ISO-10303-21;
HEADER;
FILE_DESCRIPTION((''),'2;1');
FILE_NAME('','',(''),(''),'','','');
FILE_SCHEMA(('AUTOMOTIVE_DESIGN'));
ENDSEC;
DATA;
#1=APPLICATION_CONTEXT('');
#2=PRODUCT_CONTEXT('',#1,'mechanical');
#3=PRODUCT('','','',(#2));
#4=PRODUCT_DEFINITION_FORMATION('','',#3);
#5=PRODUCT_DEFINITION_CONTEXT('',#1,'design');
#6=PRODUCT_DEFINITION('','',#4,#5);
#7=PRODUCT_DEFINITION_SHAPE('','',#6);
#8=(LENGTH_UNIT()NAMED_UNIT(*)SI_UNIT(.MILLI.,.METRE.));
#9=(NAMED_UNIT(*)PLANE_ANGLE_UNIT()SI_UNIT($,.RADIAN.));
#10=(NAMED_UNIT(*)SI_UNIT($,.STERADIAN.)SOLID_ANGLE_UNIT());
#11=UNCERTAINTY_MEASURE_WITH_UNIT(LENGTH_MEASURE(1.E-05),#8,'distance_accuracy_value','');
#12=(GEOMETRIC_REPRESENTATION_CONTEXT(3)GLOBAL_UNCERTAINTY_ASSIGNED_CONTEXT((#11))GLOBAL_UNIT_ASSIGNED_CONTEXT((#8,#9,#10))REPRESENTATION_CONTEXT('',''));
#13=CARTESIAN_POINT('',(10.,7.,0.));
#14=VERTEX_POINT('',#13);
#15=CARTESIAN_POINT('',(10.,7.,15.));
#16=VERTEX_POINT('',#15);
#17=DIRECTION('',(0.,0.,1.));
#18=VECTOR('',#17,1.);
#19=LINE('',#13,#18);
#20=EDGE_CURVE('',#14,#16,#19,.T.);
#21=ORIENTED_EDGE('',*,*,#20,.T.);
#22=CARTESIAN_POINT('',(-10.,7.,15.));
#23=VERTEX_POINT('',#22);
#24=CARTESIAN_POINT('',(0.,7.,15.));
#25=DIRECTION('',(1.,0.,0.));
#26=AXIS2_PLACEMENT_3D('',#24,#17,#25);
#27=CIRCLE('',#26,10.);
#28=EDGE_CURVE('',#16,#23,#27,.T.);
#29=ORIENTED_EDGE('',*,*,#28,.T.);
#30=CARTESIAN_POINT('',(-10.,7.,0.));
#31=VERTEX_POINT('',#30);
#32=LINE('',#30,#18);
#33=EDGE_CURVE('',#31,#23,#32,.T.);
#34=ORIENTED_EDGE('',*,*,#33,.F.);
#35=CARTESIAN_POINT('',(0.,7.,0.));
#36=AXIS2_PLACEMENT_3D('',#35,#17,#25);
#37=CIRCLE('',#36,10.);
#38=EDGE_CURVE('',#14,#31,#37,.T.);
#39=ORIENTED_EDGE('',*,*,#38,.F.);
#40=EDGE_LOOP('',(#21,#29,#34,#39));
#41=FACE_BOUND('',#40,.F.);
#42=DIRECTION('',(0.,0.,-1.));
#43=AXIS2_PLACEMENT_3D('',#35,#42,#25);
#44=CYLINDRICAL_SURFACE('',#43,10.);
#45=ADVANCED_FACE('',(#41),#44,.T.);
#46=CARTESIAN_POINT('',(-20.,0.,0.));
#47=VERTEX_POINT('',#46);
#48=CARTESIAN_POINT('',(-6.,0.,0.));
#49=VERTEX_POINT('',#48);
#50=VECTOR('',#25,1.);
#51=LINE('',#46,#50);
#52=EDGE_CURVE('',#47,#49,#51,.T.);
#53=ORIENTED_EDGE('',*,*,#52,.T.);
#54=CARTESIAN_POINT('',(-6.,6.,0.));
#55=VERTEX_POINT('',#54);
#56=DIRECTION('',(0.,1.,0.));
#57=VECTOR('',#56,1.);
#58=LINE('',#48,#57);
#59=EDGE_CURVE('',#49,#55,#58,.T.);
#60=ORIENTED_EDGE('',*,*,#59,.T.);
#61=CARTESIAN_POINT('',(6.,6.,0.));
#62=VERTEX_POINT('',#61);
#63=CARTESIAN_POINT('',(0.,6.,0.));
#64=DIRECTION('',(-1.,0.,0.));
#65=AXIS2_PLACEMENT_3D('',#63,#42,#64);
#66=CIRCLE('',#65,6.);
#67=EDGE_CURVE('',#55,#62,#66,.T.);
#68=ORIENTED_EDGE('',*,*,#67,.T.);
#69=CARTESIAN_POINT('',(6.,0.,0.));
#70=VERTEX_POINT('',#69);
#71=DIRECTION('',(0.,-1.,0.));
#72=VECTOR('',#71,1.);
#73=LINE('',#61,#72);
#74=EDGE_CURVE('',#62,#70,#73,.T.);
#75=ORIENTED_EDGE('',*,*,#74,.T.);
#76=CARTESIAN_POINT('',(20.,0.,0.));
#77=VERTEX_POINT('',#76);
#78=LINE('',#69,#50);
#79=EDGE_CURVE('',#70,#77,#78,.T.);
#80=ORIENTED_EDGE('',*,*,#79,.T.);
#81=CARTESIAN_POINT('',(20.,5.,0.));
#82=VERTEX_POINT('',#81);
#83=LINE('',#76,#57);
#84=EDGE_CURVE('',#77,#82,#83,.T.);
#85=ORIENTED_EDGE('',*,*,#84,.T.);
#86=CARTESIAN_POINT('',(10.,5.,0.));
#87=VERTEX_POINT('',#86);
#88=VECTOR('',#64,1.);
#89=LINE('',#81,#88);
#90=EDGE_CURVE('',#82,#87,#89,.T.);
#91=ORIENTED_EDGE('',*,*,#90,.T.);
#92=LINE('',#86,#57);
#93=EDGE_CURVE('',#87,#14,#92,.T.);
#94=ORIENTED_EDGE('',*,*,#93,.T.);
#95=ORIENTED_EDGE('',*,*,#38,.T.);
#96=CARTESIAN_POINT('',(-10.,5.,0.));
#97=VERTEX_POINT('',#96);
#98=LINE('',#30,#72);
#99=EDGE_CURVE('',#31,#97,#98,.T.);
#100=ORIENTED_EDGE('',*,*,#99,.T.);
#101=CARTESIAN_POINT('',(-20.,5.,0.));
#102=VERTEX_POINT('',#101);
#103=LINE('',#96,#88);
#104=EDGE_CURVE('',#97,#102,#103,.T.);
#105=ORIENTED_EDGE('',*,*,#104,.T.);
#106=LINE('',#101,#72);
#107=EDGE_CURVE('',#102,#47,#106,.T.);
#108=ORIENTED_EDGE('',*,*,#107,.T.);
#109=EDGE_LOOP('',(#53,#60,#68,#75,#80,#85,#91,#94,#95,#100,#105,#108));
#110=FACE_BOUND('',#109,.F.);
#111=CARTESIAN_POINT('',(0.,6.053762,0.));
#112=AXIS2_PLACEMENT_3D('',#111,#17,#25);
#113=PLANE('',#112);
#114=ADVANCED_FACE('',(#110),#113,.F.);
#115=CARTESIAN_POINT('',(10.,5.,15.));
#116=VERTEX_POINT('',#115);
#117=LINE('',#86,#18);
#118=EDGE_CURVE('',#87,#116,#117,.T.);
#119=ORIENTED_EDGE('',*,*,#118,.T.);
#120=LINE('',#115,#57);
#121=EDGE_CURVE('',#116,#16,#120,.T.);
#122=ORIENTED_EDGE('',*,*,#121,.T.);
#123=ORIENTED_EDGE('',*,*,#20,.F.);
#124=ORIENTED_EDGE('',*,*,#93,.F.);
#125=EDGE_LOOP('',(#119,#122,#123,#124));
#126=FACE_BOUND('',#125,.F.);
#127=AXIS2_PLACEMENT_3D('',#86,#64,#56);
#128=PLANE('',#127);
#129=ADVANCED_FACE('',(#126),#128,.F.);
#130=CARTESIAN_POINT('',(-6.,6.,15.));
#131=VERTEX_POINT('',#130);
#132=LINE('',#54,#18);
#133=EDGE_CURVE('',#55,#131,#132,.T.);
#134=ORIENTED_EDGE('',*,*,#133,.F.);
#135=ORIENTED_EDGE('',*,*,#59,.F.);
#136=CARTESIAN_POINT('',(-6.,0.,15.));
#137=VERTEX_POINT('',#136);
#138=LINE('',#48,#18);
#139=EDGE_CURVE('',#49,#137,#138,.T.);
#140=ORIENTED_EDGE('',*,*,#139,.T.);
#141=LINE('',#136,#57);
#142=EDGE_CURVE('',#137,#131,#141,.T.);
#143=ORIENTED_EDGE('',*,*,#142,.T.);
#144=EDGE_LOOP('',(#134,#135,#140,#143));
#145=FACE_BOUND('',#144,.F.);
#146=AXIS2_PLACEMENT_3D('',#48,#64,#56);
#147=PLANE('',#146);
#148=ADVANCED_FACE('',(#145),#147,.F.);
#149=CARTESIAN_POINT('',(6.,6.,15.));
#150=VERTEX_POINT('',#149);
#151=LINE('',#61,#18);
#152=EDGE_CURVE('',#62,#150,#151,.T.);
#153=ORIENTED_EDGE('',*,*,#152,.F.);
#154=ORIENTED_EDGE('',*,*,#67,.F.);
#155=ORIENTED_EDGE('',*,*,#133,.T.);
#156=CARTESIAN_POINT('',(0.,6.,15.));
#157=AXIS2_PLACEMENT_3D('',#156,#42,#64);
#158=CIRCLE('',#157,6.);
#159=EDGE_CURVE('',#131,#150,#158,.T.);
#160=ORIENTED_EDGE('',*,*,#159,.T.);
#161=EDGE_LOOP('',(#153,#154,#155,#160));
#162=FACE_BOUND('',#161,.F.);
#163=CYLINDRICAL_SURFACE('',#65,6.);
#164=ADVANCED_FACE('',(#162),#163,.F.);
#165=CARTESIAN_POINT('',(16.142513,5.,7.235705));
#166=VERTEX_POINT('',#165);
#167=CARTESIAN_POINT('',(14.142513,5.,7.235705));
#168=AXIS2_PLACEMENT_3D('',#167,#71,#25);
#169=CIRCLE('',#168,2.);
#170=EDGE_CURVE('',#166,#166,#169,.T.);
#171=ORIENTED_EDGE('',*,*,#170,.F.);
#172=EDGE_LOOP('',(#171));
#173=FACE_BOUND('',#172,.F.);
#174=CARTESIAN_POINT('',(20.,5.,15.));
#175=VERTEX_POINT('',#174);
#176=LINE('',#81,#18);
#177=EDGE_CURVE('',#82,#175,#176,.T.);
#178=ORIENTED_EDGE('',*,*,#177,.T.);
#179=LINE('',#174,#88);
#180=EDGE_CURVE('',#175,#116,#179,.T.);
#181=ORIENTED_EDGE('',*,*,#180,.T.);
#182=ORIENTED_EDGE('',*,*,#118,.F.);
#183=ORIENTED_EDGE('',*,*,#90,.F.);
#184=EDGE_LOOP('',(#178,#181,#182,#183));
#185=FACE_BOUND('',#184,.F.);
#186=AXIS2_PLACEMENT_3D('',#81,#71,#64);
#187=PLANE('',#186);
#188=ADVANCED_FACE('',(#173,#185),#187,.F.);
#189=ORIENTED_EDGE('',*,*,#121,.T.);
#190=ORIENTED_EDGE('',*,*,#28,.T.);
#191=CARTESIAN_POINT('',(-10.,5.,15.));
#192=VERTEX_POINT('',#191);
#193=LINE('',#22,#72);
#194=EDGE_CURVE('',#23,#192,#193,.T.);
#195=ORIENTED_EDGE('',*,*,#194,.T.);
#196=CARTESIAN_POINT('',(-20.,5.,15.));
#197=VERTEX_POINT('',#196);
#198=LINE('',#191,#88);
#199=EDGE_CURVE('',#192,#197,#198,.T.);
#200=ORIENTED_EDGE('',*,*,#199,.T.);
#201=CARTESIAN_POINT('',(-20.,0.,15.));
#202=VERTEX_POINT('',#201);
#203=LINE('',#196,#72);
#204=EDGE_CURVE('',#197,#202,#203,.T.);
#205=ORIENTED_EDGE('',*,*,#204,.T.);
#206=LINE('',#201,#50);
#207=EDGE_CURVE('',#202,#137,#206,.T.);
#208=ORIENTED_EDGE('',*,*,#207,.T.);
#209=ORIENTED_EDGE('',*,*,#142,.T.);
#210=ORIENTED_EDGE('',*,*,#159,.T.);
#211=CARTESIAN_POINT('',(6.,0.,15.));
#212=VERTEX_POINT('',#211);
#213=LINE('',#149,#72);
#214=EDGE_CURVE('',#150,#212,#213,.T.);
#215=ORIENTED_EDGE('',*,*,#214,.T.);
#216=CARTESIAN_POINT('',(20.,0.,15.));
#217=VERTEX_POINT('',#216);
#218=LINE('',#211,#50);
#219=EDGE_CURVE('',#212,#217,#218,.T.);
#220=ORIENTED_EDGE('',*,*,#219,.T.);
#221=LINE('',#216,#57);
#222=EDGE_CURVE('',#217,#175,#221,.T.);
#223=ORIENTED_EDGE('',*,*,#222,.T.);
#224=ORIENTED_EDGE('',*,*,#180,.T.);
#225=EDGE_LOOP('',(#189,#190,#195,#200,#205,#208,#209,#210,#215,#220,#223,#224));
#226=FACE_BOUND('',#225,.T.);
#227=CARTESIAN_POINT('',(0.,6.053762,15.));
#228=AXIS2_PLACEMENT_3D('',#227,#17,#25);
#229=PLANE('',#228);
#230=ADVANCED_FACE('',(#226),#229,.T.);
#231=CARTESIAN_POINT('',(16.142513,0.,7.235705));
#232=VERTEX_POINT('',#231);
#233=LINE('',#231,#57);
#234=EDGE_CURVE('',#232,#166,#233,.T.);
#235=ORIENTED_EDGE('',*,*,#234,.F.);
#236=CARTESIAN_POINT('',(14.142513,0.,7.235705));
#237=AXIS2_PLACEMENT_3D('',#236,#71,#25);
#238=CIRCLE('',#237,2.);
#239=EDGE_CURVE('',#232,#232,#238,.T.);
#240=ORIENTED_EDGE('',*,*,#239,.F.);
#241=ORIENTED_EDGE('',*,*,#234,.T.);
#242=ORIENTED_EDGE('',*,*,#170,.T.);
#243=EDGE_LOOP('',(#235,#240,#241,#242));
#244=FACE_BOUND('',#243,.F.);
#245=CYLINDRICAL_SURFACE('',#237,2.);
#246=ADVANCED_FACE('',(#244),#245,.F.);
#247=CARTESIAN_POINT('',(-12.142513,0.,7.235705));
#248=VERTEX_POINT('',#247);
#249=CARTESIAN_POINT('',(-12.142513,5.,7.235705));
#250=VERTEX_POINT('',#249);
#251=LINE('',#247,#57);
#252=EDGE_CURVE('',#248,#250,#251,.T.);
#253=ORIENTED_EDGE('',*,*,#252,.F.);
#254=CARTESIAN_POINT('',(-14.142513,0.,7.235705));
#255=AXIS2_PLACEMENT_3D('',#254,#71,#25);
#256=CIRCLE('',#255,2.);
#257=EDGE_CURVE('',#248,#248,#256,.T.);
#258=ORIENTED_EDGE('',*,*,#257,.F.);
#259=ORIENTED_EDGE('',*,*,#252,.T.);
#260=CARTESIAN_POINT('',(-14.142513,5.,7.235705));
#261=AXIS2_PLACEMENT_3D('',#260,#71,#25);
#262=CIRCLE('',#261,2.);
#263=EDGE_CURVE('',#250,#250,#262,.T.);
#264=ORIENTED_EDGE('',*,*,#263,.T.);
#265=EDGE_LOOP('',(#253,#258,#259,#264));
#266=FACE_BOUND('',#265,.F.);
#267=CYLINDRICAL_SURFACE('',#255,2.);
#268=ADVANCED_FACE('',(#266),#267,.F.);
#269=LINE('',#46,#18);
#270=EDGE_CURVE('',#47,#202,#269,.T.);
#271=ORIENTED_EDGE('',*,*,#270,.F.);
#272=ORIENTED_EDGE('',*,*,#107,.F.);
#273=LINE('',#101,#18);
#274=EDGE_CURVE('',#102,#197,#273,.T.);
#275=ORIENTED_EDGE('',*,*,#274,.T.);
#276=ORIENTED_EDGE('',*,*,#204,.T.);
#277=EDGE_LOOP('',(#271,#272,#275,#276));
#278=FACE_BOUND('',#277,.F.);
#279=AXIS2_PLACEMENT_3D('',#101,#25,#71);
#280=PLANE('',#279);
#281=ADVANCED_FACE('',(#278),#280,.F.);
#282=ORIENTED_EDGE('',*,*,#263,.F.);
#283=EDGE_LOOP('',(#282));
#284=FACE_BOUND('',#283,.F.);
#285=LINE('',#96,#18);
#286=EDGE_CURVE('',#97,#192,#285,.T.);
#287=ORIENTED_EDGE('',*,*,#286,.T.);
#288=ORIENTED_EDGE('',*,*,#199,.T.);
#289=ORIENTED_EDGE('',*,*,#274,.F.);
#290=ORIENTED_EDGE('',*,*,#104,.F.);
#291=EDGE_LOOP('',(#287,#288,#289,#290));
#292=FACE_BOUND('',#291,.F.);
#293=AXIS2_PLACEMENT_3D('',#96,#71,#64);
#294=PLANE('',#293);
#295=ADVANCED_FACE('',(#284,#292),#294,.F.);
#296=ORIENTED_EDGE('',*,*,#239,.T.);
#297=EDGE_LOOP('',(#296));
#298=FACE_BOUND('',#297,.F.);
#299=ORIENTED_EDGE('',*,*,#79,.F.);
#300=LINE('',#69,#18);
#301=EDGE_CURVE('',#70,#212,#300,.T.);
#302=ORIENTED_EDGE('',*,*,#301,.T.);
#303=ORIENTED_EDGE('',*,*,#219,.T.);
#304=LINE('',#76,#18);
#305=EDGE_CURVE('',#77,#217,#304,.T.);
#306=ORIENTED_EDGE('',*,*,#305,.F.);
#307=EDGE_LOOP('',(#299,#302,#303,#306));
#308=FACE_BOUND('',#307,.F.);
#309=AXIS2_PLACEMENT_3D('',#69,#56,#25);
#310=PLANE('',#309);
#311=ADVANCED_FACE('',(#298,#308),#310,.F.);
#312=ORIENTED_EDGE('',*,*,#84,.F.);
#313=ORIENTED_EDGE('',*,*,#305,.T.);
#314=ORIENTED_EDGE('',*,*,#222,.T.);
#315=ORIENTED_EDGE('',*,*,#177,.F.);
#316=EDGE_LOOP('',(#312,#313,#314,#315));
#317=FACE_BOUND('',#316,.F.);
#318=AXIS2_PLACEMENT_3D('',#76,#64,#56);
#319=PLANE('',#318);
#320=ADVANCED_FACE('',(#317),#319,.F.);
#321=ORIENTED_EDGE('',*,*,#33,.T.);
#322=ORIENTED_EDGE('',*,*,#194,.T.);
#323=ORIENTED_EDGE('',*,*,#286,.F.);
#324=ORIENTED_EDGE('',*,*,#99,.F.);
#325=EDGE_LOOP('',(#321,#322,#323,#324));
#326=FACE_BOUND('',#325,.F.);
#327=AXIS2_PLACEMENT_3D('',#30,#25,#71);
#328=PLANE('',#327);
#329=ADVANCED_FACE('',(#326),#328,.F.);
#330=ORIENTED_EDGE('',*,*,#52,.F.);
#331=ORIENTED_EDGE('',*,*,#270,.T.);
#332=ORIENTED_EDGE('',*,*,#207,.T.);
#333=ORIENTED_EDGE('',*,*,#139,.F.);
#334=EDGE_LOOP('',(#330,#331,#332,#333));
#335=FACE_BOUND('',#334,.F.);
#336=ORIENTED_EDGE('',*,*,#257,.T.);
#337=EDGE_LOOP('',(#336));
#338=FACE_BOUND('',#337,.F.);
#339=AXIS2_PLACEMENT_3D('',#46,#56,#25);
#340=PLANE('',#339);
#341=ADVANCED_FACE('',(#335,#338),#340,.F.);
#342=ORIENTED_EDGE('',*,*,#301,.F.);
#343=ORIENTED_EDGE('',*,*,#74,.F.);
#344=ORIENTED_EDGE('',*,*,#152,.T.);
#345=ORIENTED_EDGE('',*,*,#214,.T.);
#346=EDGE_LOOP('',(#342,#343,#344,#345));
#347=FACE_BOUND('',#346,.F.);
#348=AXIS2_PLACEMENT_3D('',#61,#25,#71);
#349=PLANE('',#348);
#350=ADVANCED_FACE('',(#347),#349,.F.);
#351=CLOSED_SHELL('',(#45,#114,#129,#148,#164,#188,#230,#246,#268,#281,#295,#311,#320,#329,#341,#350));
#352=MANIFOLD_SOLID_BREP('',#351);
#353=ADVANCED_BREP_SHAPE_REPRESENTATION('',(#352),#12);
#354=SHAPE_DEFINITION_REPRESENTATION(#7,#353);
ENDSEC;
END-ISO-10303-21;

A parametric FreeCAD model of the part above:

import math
import FreeCAD as App
import Part
import Sketcher
from FreeCAD import Vector

doc = App.newDocument("Part")
body = doc.addObject("PartDesign::Body", "Body")

# Sketch on XY plane
sketch1 = body.newObject("Sketcher::SketchObject", "Sketch")
sketch1.AttachmentSupport = (doc.getObject("XY_Plane"), [""])
sketch1.MapMode = "FlatFace"
sketch1.addGeometry([
    Part.ArcOfCircle(Part.Circle(Vector(0, 7, 0), Vector(0, 0, 1), 10), math.radians(0), math.radians(180)),  # 0
    Part.LineSegment(Vector(-10, 7, 0), Vector(-10, 5, 0)),  # 1
    Part.LineSegment(Vector(-10, 5, 0), Vector(-20, 5, 0)),  # 2
    Part.LineSegment(Vector(-20, 5, 0), Vector(-20, 0, 0)),  # 3
    Part.LineSegment(Vector(-20, 0, 0), Vector(-6, 0, 0)),  # 4
    Part.LineSegment(Vector(-6, 0, 0), Vector(-6, 6, 0)),  # 5
    Part.ArcOfCircle(Part.Circle(Vector(0, 6, 0), Vector(0, 0, 1), 6), math.radians(0), math.radians(180)),  # 6
    Part.LineSegment(Vector(6, 6, 0), Vector(6, 0, 0)),  # 7
    Part.LineSegment(Vector(6, 0, 0), Vector(20, 0, 0)),  # 8
    Part.LineSegment(Vector(20, 0, 0), Vector(20, 5, 0)),  # 9
    Part.LineSegment(Vector(20, 5, 0), Vector(10, 5, 0)),  # 10
    Part.LineSegment(Vector(10, 5, 0), Vector(10, 7, 0)),  # 11
], False)
sketch1.addConstraint([
    Sketcher.Constraint("Tangent", 0, 2, 1, 1),
    Sketcher.Constraint("Coincident", 1, 2, 2, 1),
    Sketcher.Constraint("Coincident", 2, 2, 3, 1),
    Sketcher.Constraint("Coincident", 3, 2, 4, 1),
    Sketcher.Constraint("Coincident", 4, 2, 5, 1),
    Sketcher.Constraint("Tangent", 5, 2, 6, 2),
    Sketcher.Constraint("Tangent", 6, 1, 7, 1),
    Sketcher.Constraint("Coincident", 7, 2, 8, 1),
    Sketcher.Constraint("Coincident", 8, 2, 9, 1),
    Sketcher.Constraint("Coincident", 9, 2, 10, 1),
    Sketcher.Constraint("Coincident", 10, 2, 11, 1),
    Sketcher.Constraint("Tangent", 11, 2, 0, 1),
    Sketcher.Constraint("Vertical", 1),
    Sketcher.Constraint("Horizontal", 2),
    Sketcher.Constraint("Vertical", 3),
    Sketcher.Constraint("Horizontal", 4),
    Sketcher.Constraint("Vertical", 5),
    Sketcher.Constraint("Vertical", 7),
    Sketcher.Constraint("Horizontal", 8),
    Sketcher.Constraint("Vertical", 9),
    Sketcher.Constraint("Horizontal", 10),
    Sketcher.Constraint("Vertical", 11),
    Sketcher.Constraint("Symmetric", 4, 2, 7, 2, -1, 1),
    Sketcher.Constraint("Symmetric", 3, 2, 8, 2, -2),
    Sketcher.Constraint("Symmetric", 1, 2, 10, 2, -2),
    Sketcher.Constraint("Radius", 0, 10.0),
    Sketcher.Constraint("Radius", 6, 6.0),
    Sketcher.Constraint("DistanceX", 2, 2, 2, 1, 10.0),
    Sketcher.Constraint("DistanceY", 1, 2, 1, 1, 2.0),
    Sketcher.Constraint("DistanceY", 3, 2, 3, 1, 5.0),
    Sketcher.Constraint("DistanceY", 5, 1, 5, 2, 6.0),
])
pad1 = body.newObject("PartDesign::Pad", "Pad")
pad1.Profile = sketch1
pad1.Length = 15

# Sketch on XZ plane
sketch2 = body.newObject("Sketcher::SketchObject", "Sketch001")
sketch2.AttachmentSupport = (doc.getObject("XZ_Plane"), [""])
sketch2.MapMode = "FlatFace"
sketch2.addGeometry([
    Part.Circle(Vector(-14.1, 7.2, 0), Vector(0, 0, 1), 2),
    Part.Circle(Vector(14.1, 7.2, 0), Vector(0, 0, 1), 2),
], False)
sketch2.addConstraint([
    Sketcher.Constraint("Equal", 0, 1),
    Sketcher.Constraint("Symmetric", 0, 3, 1, 3, -2),
    Sketcher.Constraint("Diameter", 0, 4.0),
    Sketcher.Constraint("DistanceX", 0, 3, -1, 1, 14.142513),
    Sketcher.Constraint("DistanceY", -1, 1, 0, 3, 7.235705),
])
pocket1 = body.newObject("PartDesign::Pocket", "Pocket")
pocket1.Profile = sketch2
pocket1.Length = 25

doc.recompute()
